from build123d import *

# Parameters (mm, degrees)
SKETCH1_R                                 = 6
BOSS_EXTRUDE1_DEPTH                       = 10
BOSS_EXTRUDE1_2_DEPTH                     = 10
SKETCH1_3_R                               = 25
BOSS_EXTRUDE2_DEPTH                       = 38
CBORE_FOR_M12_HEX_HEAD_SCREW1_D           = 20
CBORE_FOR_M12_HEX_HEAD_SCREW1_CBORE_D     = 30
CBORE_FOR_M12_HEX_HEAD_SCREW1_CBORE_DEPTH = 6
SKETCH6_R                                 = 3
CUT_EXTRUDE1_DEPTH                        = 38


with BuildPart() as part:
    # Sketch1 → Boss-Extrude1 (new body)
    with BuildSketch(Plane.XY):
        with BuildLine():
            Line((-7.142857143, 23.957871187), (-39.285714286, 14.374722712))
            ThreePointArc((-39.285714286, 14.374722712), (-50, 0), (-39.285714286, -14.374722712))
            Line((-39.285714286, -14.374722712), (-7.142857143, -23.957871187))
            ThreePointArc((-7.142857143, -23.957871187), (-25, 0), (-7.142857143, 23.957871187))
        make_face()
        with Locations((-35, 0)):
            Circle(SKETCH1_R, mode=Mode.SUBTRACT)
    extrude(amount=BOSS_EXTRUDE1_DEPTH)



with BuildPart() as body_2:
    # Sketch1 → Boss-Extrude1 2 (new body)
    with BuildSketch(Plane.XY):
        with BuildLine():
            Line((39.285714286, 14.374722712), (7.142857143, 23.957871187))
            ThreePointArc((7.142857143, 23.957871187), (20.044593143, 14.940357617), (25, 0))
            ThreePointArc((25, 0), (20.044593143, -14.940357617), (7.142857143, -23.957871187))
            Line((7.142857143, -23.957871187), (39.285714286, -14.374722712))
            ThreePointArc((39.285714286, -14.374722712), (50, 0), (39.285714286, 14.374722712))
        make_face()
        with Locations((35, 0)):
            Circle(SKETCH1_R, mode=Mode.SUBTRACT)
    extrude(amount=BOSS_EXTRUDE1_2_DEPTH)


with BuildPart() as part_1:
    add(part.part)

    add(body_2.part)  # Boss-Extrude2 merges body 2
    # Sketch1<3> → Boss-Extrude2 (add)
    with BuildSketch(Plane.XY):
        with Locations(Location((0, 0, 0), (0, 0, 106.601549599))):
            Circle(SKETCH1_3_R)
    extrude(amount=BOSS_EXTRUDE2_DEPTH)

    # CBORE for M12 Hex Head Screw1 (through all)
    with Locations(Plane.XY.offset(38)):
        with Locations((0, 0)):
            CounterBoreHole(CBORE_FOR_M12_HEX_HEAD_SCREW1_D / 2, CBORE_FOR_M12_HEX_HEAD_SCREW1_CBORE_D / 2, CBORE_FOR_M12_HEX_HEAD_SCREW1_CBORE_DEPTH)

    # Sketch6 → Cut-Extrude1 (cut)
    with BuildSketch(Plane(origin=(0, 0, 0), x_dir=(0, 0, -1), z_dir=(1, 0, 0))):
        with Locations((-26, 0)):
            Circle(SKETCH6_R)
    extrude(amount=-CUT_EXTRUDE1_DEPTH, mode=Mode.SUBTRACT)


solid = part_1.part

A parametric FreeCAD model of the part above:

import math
import FreeCAD as App
import Part
import Sketcher
Q = App.Units.Quantity

doc = App.newDocument("Part")
body = doc.addObject("PartDesign::Body", "Body")

sketch1 = body.newObject("Sketcher::SketchObject", "Sketch")
sketch1.AttachmentSupport = (doc.getObject("XY_Plane"), [""])
sketch1.MapMode = "FlatFace"
sketch1.addGeometry([
    Part.LineSegment(App.Vector(-7, 24, 0), App.Vector(-39, 14, 0)),
    Part.ArcOfCircle(Part.Circle(App.Vector(-35, 0, 0), App.Vector(0, 0, 1), 15), math.radians(107), math.radians(253)),
    Part.LineSegment(App.Vector(-39, -14, 0), App.Vector(-7, -24, 0)),
    Part.ArcOfCircle(Part.Circle(App.Vector(0, 0, 0), App.Vector(0, 0, 1), 25), math.radians(107), math.radians(253)),
    Part.Circle(App.Vector(-35, 0, 0), App.Vector(0, 0, 1), 6),
], False)
sketch1.addConstraint([
    Sketcher.Constraint("Tangent", 0, 2, 1, 1),
    Sketcher.Constraint("Tangent", 1, 2, 2, 1),
    Sketcher.Constraint("Tangent", 2, 2, 3, 2),
    Sketcher.Constraint("Tangent", 3, 1, 0, 1),
    Sketcher.Constraint("Coincident", 3, 3, -1, 1),
    Sketcher.Constraint("Coincident", 4, 3, 1, 3),
    Sketcher.Constraint("PointOnObject", 1, 3, -1),
    Sketcher.Constraint("Diameter", 4, Q("12 mm")),
    Sketcher.Constraint("Radius", 1, Q("15 mm")),
    Sketcher.Constraint("Radius", 3, Q("25 mm")),
    Sketcher.Constraint("DistanceX", 1, 3, -1, 1, Q("35 mm")),
])
pad1 = body.newObject("PartDesign::Pad", "Pad")
pad1.Profile = sketch1
pad1.Length = 10
body2 = doc.addObject("PartDesign::Body", "Body001")

sketch2 = body2.newObject("Sketcher::SketchObject", "Sketch001")
sketch2.AttachmentSupport = (doc.getObject("XY_Plane001"), [""])
sketch2.MapMode = "FlatFace"
sketch2.addGeometry([
    Part.LineSegment(App.Vector(39, 14, 0), App.Vector(7, 24, 0)),
    Part.ArcOfCircle(Part.Circle(App.Vector(0, 0, 0), App.Vector(0, 0, 1), 25), math.radians(0), math.radians(73)),
    Part.ArcOfCircle(Part.Circle(App.Vector(0, 0, 0), App.Vector(0, 0, 1), 25), math.radians(-73), math.radians(0)),
    Part.LineSegment(App.Vector(7, -24, 0), App.Vector(39, -14, 0)),
    Part.ArcOfCircle(Part.Circle(App.Vector(35, 0, 0), App.Vector(0, 0, 1), 15), math.radians(-73), math.radians(73)),
    Part.Circle(App.Vector(35, 0, 0), App.Vector(0, 0, 1), 6),
], False)
sketch2.addConstraint([
    Sketcher.Constraint("Tangent", 0, 2, 1, 2),
    Sketcher.Constraint("Tangent", 1, 1, 2, 2),
    Sketcher.Constraint("Tangent", 2, 1, 3, 1),
    Sketcher.Constraint("Tangent", 3, 2, 4, 1),
    Sketcher.Constraint("Tangent", 4, 2, 0, 1),
    Sketcher.Constraint("Coincident", 1, 3, -1, 1),
    Sketcher.Constraint("Coincident", 5, 3, 4, 3),
    Sketcher.Constraint("Equal", 1, 2),
    Sketcher.Constraint("PointOnObject", 4, 3, -1),
    Sketcher.Constraint("PointOnObject", 1, 1, -1),
    Sketcher.Constraint("Diameter", 5, Q("12 mm")),
    Sketcher.Constraint("Radius", 1, Q("25 mm")),
    Sketcher.Constraint("Radius", 4, Q("15 mm")),
    Sketcher.Constraint("DistanceX", -1, 1, 4, 3, Q("35 mm")),
])
pad2 = body2.newObject("PartDesign::Pad", "Pad001")
pad2.Profile = sketch2
pad2.Length = 10
body.AllowCompound = True
doc.recompute()

boolean = body.newObject("PartDesign::Boolean", "Boolean")
boolean.Type = "Fuse"
boolean.addObjects([body2])

sketch3 = body.newObject("Sketcher::SketchObject", "Sketch002")
sketch3.AttachmentSupport = (doc.getObject("XY_Plane"), [""])
sketch3.MapMode = "FlatFace"
sketch3.addGeometry(Part.Circle(App.Vector(0, 0, 0), App.Vector(0, 0, 1), 25), False)
sketch3.addConstraint([
    Sketcher.Constraint("Coincident", 0, 3, -1, 1),
    Sketcher.Constraint("Diameter", 0, Q("50 mm")),
])
pad3 = body.newObject("PartDesign::Pad", "Pad002")
pad3.Profile = sketch3
pad3.Length = 38

sketch4 = body.newObject("Sketcher::SketchObject", "Sketch003")
sketch4.AttachmentSupport = (doc.getObject("XY_Plane"), [""])
sketch4.MapMode = "FlatFace"
sketch4.AttachmentOffset = App.Placement(App.Vector(0, 0, 38), App.Rotation())
sketch4.addGeometry(Part.Circle(App.Vector(0, 0, 0), App.Vector(0, 0, 1), 10), False)
sketch4.addConstraint([
    Sketcher.Constraint("Coincident", 0, 3, -1, 1),
    Sketcher.Constraint("Diameter", 0, Q("20 mm")),
])
doc.recompute()
hole = body.newObject("PartDesign::Hole", "Hole")
hole.Profile = sketch4
hole.ThreadType = "None"
hole.Diameter = 20
hole.DepthType = "ThroughAll"
hole.HoleCutType = "Counterbore"
hole.HoleCutDiameter = 30
hole.HoleCutDepth = 6

sketch5 = body.newObject("Sketcher::SketchObject", "Sketch004")
sketch5.AttachmentSupport = (doc.getObject("YZ_Plane"), [""])
sketch5.MapMode = "FlatFace"
sketch5.addGeometry(Part.Circle(App.Vector(0, 26, 0), App.Vector(0, 0, 1), 3), False)
sketch5.addConstraint([
    Sketcher.Constraint("PointOnObject", 0, 3, -2),
    Sketcher.Constraint("Diameter", 0, Q("6 mm")),
    Sketcher.Constraint("DistanceY", -1, 1, 0, 3, Q("26 mm")),
])
pocket1 = body.newObject("PartDesign::Pocket", "Pocket")
pocket1.Profile = sketch5
pocket1.Length = 38

doc.recompute()
